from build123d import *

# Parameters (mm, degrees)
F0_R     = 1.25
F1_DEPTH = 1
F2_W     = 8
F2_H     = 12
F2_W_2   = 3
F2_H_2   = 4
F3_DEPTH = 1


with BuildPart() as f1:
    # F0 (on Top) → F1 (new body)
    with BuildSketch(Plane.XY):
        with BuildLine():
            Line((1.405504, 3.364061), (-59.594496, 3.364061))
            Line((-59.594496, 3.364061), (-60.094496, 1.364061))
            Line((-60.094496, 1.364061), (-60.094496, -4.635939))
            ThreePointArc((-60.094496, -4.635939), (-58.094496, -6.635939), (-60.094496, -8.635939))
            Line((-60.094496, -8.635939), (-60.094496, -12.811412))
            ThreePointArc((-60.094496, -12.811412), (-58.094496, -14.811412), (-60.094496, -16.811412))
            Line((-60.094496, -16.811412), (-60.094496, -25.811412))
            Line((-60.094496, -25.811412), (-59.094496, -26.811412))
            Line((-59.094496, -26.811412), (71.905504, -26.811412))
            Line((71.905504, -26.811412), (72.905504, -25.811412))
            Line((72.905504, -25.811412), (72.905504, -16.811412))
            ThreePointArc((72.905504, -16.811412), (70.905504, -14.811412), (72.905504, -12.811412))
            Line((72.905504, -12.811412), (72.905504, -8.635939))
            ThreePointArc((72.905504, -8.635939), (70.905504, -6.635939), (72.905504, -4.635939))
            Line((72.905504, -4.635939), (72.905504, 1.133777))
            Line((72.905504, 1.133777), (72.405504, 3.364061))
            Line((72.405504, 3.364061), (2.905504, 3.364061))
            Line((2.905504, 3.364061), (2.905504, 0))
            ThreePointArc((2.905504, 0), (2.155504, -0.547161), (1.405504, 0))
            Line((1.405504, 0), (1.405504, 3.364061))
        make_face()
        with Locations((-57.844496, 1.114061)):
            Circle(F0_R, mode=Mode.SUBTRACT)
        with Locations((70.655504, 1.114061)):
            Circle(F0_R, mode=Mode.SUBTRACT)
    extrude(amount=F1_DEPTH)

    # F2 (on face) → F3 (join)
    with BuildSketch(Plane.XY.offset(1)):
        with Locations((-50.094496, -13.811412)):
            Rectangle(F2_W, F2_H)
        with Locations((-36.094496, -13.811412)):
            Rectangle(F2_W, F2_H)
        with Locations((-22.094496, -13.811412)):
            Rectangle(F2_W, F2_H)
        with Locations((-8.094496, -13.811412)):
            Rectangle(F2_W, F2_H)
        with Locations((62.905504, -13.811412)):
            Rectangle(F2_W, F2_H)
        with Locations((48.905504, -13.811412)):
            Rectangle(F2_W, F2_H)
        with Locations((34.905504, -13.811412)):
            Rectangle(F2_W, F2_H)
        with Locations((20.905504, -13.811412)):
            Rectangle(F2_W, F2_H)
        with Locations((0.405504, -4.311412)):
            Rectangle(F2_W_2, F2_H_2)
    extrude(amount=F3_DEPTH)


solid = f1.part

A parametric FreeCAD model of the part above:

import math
import FreeCAD as App
import Part
import Sketcher

V = App.Vector
Q = App.Units.Quantity


def add_polygon(sketch, points):
    """Adds a closed chain of lines whose ends are joined by coincident constraints."""
    first, n = sketch.GeometryCount, len(points)
    for a, b in zip(points, points[1:] + points[:1]):
        sketch.addGeometry(Part.LineSegment(App.Vector(*a, 0), App.Vector(*b, 0)), False)
    for i in range(n):
        sketch.addConstraint(Sketcher.Constraint("Coincident", first + i, 2, first + (i + 1) % n, 1))

doc = App.newDocument("Part")
body = doc.addObject("PartDesign::Body", "Body")

# Sketch on XY plane
sketch1 = body.newObject("Sketcher::SketchObject", "Sketch")
sketch1.AttachmentSupport = (doc.getObject("XY_Plane"), [""])
sketch1.MapMode = "FlatFace"
sketch1.addGeometry(Part.LineSegment(V(1.4, 3.4, 0), V(-59.6, 3.4, 0)), False)
sketch1.addGeometry(Part.LineSegment(V(-59.6, 3.4, 0), V(-60.1, 1.4, 0)), False)
sketch1.addGeometry(Part.LineSegment(V(-60.1, 1.4, 0), V(-60.1, -4.6, 0)), False)
sketch1.addGeometry(Part.ArcOfCircle(Part.Circle(V(-60.1, -6.6, 0), V(0, 0, 1), 2), math.radians(-90), math.radians(90)), False)
sketch1.addGeometry(Part.LineSegment(V(-60.1, -8.6, 0), V(-60.1, -12.8, 0)), False)
sketch1.addGeometry(Part.ArcOfCircle(Part.Circle(V(-60.1, -14.8, 0), V(0, 0, 1), 2), math.radians(-90), math.radians(90)), False)
sketch1.addGeometry(Part.LineSegment(V(-60.1, -16.8, 0), V(-60.1, -25.8, 0)), False)
sketch1.addGeometry(Part.LineSegment(V(-60.1, -25.8, 0), V(-59.1, -26.8, 0)), False)
sketch1.addGeometry(Part.LineSegment(V(-59.1, -26.8, 0), V(71.9, -26.8, 0)), False)
sketch1.addGeometry(Part.LineSegment(V(71.9, -26.8, 0), V(72.9, -25.8, 0)), False)
sketch1.addGeometry(Part.LineSegment(V(72.9, -25.8, 0), V(72.9, -16.8, 0)), False)
sketch1.addGeometry(Part.ArcOfCircle(Part.Circle(V(72.9, -14.8, 0), V(0, 0, 1), 2), math.radians(90), math.radians(270)), False)
sketch1.addGeometry(Part.LineSegment(V(72.9, -12.8, 0), V(72.9, -8.6, 0)), False)
sketch1.addGeometry(Part.ArcOfCircle(Part.Circle(V(72.9, -6.6, 0), V(0, 0, 1), 2), math.radians(90), math.radians(270)), False)
sketch1.addGeometry(Part.LineSegment(V(72.9, -4.6, 0), V(72.9, 1.1, 0)), False)
sketch1.addGeometry(Part.LineSegment(V(72.9, 1.1, 0), V(72.4, 3.4, 0)), False)
sketch1.addGeometry(Part.LineSegment(V(72.4, 3.4, 0), V(2.9, 3.4, 0)), False)
sketch1.addGeometry(Part.LineSegment(V(2.9, 3.4, 0), V(2.9, 0, 0)), False)
sketch1.addGeometry(Part.ArcOfCircle(Part.Circle(V(2.2, 0.2, 0), V(0, 0, 1), 0.8), math.radians(-162), math.radians(-18)), False)
sketch1.addGeometry(Part.LineSegment(V(1.4, 0, 0), V(1.4, 3.4, 0)), False)
sketch1.addGeometry(Part.Circle(V(-57.8, 1.1, 0), V(0, 0, 1), 1.2), False)
sketch1.addGeometry(Part.Circle(V(70.7, 1.1, 0), V(0, 0, 1), 1.2), False)
sketch1.addConstraint(Sketcher.Constraint("Coincident", 0, 2, 1, 1))
sketch1.addConstraint(Sketcher.Constraint("Coincident", 1, 2, 2, 1))
sketch1.addConstraint(Sketcher.Constraint("Coincident", 2, 2, 3, 2))
sketch1.addConstraint(Sketcher.Constraint("Coincident", 3, 1, 4, 1))
sketch1.addConstraint(Sketcher.Constraint("Coincident", 4, 2, 5, 2))
sketch1.addConstraint(Sketcher.Constraint("Coincident", 5, 1, 6, 1))
sketch1.addConstraint(Sketcher.Constraint("Coincident", 6, 2, 7, 1))
sketch1.addConstraint(Sketcher.Constraint("Coincident", 7, 2, 8, 1))
sketch1.addConstraint(Sketcher.Constraint("Coincident", 8, 2, 9, 1))
sketch1.addConstraint(Sketcher.Constraint("Coincident", 9, 2, 10, 1))
sketch1.addConstraint(Sketcher.Constraint("Coincident", 10, 2, 11, 2))
sketch1.addConstraint(Sketcher.Constraint("Coincident", 11, 1, 12, 1))
sketch1.addConstraint(Sketcher.Constraint("Coincident", 12, 2, 13, 2))
sketch1.addConstraint(Sketcher.Constraint("Coincident", 13, 1, 14, 1))
sketch1.addConstraint(Sketcher.Constraint("Coincident", 14, 2, 15, 1))
sketch1.addConstraint(Sketcher.Constraint("Coincident", 15, 2, 16, 1))
sketch1.addConstraint(Sketcher.Constraint("Coincident", 16, 2, 17, 1))
sketch1.addConstraint(Sketcher.Constraint("Coincident", 17, 2, 18, 2))
sketch1.addConstraint(Sketcher.Constraint("Coincident", 18, 1, 19, 1))
sketch1.addConstraint(Sketcher.Constraint("Coincident", 19, 2, 0, 1))
sketch1.addConstraint(Sketcher.Constraint("Horizontal", 0))
sketch1.addConstraint(Sketcher.Constraint("Vertical", 2))
sketch1.addConstraint(Sketcher.Constraint("Vertical", 4))
sketch1.addConstraint(Sketcher.Constraint("Vertical", 6))
sketch1.addConstraint(Sketcher.Constraint("Horizontal", 8))
sketch1.addConstraint(Sketcher.Constraint("Vertical", 10))
sketch1.addConstraint(Sketcher.Constraint("Vertical", 12))
sketch1.addConstraint(Sketcher.Constraint("Vertical", 14))
sketch1.addConstraint(Sketcher.Constraint("Horizontal", 16))
sketch1.addConstraint(Sketcher.Constraint("Vertical", 17))
sketch1.addConstraint(Sketcher.Constraint("Vertical", 19))
sketch1.addConstraint(Sketcher.Constraint("Equal", 3, 5))
sketch1.addConstraint(Sketcher.Constraint("Equal", 5, 11))
sketch1.addConstraint(Sketcher.Constraint("Equal", 11, 13))
sketch1.addConstraint(Sketcher.Constraint("Equal", 20, 21))
sketch1.addConstraint(Sketcher.Constraint("PointOnObject", 17, 2, -1))
sketch1.addConstraint(Sketcher.Constraint("PointOnObject", 18, 1, -1))
sketch1.addConstraint(Sketcher.Constraint("Perpendicular", 7, 9))
sketch1.addConstraint(Sketcher.Constraint("Horizontal", 5, 3, 11, 3))
sketch1.addConstraint(Sketcher.Constraint("Horizontal", 3, 3, 13, 3))
sketch1.addConstraint(Sketcher.Constraint("Horizontal", 20, 3, 21, 3))
sketch1.addConstraint(Sketcher.Constraint("Horizontal", 6, 2, 9, 2))
sketch1.addConstraint(Sketcher.Constraint("Horizontal", 0, 2, 15, 2))
sketch1.addConstraint(Sketcher.Constraint("Vertical", 3, 3, 5, 3))
sketch1.addConstraint(Sketcher.Constraint("Vertical", 11, 3, 13, 3))
sketch1.addConstraint(Sketcher.Constraint("Vertical", 5, 3, 1, 2))
sketch1.addConstraint(Sketcher.Constraint("Vertical", 2, 2, 3, 1))
sketch1.addConstraint(Sketcher.Constraint("Vertical", 4, 2, 5, 1))
sketch1.addConstraint(Sketcher.Constraint("Vertical", 13, 3, 9, 2))
sketch1.addConstraint(Sketcher.Constraint("Vertical", 10, 2, 11, 1))
sketch1.addConstraint(Sketcher.Constraint("Vertical", 12, 2, 13, 1))
sketch1.addConstraint(Sketcher.Constraint("Equal", 7, 9))
sketch1.addConstraint(Sketcher.Constraint("Radius", 3, Q("2 mm")))
sketch1.addConstraint(Sketcher.Constraint("Diameter", 20, Q("2.5 mm")))
sketch1.addConstraint(Sketcher.Constraint("DistanceX", 0, 2, 0, 1, Q("61 mm")))
sketch1.addConstraint(Sketcher.Constraint("DistanceX", 8, 1, 8, 2, Q("131 mm")))
sketch1.addConstraint(Sketcher.Constraint("DistanceY", 2, 2, 2, 1, Q("6 mm")))
sketch1.addConstraint(Sketcher.Constraint("DistanceY", 6, 2, 6, 1, Q("9 mm")))
sketch1.addConstraint(Sketcher.Constraint("DistanceX", 16, 2, 16, 1, Q("69.5 mm")))
sketch1.addConstraint(Sketcher.Constraint("DistanceX", 5, 3, 11, 3, Q("133 mm")))
sketch1.addConstraint(Sketcher.Constraint("DistanceX", 20, 3, 18, 3, Q("60 mm")))
sketch1.addConstraint(Sketcher.Constraint("DistanceY", 3, 3, 0, 2, Q("10 mm")))
sketch1.addConstraint(Sketcher.Constraint("DistanceX", 1, 2, 16, 2, Q("63 mm")))
sketch1.addConstraint(Sketcher.Constraint("DistanceX", 18, 3, 21, 3, Q("68.5 mm")))
sketch1.addConstraint(Sketcher.Constraint("DistanceX", 3, 3, 0, 2, Q("0.5 mm")))
sketch1.addConstraint(Sketcher.Constraint("DistanceY", 3, 3, 20, 3, Q("7.75 mm")))
sketch1.addConstraint(Sketcher.Constraint("Radius", 18, Q("0.787597 mm")))
sketch1.addConstraint(Sketcher.Constraint("DistanceY", 17, 2, 17, 1, Q("3.364061 mm")))
sketch1.addConstraint(Sketcher.Constraint("DistanceY", 4, 2, 4, 1, Q("4.175473 mm")))
sketch1.addConstraint(Sketcher.Constraint("DistanceY", 14, 1, 14, 2, Q("5.769716 mm")))
sketch1.addConstraint(Sketcher.Constraint("DistanceX", 3, 3, -1, 1, Q("60.094496 mm")))
pad1 = body.newObject("PartDesign::Pad", "Pad")
pad1.Profile = sketch1
pad1.Length = 1

# Sketch on XY plane
sketch2 = body.newObject("Sketcher::SketchObject", "Sketch001")
sketch2.AttachmentSupport = (doc.getObject("XY_Plane"), [""])
sketch2.MapMode = "FlatFace"
sketch2.AttachmentOffset = App.Placement(V(0, 0, 1), App.Rotation())
add_polygon(sketch2, [(-54.1, -7.8), (-54.1, -19.8), (-46.1, -19.8), (-46.1, -7.8)])  # lines 0-3
add_polygon(sketch2, [(-40.1, -7.8), (-40.1, -19.8), (-32.1, -19.8), (-32.1, -7.8)])  # lines 4-7
add_polygon(sketch2, [(-26.1, -7.8), (-26.1, -19.8), (-18.1, -19.8), (-18.1, -7.8)])  # lines 8-11
add_polygon(sketch2, [(-12.1, -7.8), (-12.1, -19.8), (-4.1, -19.8), (-4.1, -7.8)])  # lines 12-15
add_polygon(sketch2, [(58.9, -7.8), (58.9, -19.8), (66.9, -19.8), (66.9, -7.8)])  # lines 16-19
add_polygon(sketch2, [(44.9, -7.8), (44.9, -19.8), (52.9, -19.8), (52.9, -7.8)])  # lines 20-23
add_polygon(sketch2, [(30.9, -7.8), (30.9, -19.8), (38.9, -19.8), (38.9, -7.8)])  # lines 24-27
add_polygon(sketch2, [(16.9, -7.8), (16.9, -19.8), (24.9, -19.8), (24.9, -7.8)])  # lines 28-31
add_polygon(sketch2, [(-1.1, -2.3), (-1.1, -6.3), (1.9, -6.3), (1.9, -2.3)])  # lines 32-35
sketch2.addConstraint(Sketcher.Constraint("Vertical", 0))
sketch2.addConstraint(Sketcher.Constraint("Horizontal", 1))
sketch2.addConstraint(Sketcher.Constraint("Vertical", 2))
sketch2.addConstraint(Sketcher.Constraint("Horizontal", 3))
sketch2.addConstraint(Sketcher.Constraint("Vertical", 4))
sketch2.addConstraint(Sketcher.Constraint("Horizontal", 5))
sketch2.addConstraint(Sketcher.Constraint("Vertical", 6))
sketch2.addConstraint(Sketcher.Constraint("Horizontal", 7))
sketch2.addConstraint(Sketcher.Constraint("Vertical", 8))
sketch2.addConstraint(Sketcher.Constraint("Horizontal", 9))
sketch2.addConstraint(Sketcher.Constraint("Vertical", 10))
sketch2.addConstraint(Sketcher.Constraint("Horizontal", 11))
sketch2.addConstraint(Sketcher.Constraint("Vertical", 12))
sketch2.addConstraint(Sketcher.Constraint("Horizontal", 13))
sketch2.addConstraint(Sketcher.Constraint("Vertical", 14))
sketch2.addConstraint(Sketcher.Constraint("Horizontal", 15))
sketch2.addConstraint(Sketcher.Constraint("Vertical", 16))
sketch2.addConstraint(Sketcher.Constraint("Horizontal", 17))
sketch2.addConstraint(Sketcher.Constraint("Vertical", 18))
sketch2.addConstraint(Sketcher.Constraint("Horizontal", 19))
sketch2.addConstraint(Sketcher.Constraint("Vertical", 20))
sketch2.addConstraint(Sketcher.Constraint("Horizontal", 21))
sketch2.addConstraint(Sketcher.Constraint("Vertical", 22))
sketch2.addConstraint(Sketcher.Constraint("Horizontal", 23))
sketch2.addConstraint(Sketcher.Constraint("Vertical", 24))
sketch2.addConstraint(Sketcher.Constraint("Horizontal", 25))
sketch2.addConstraint(Sketcher.Constraint("Vertical", 26))
sketch2.addConstraint(Sketcher.Constraint("Horizontal", 27))
sketch2.addConstraint(Sketcher.Constraint("Vertical", 28))
sketch2.addConstraint(Sketcher.Constraint("Horizontal", 29))
sketch2.addConstraint(Sketcher.Constraint("Vertical", 30))
sketch2.addConstraint(Sketcher.Constraint("Horizontal", 31))
sketch2.addConstraint(Sketcher.Constraint("Vertical", 32))
sketch2.addConstraint(Sketcher.Constraint("Horizontal", 33))
sketch2.addConstraint(Sketcher.Constraint("Vertical", 34))
sketch2.addConstraint(Sketcher.Constraint("Horizontal", 35))
sketch2.addConstraint(Sketcher.Constraint("Horizontal", 1, 2, 4, 2))
sketch2.addConstraint(Sketcher.Constraint("Horizontal", 3, 2, 6, 2))
sketch2.addConstraint(Sketcher.Constraint("Horizontal", 5, 2, 8, 2))
sketch2.addConstraint(Sketcher.Constraint("Horizontal", 7, 2, 10, 2))
sketch2.addConstraint(Sketcher.Constraint("Horizontal", 9, 2, 12, 2))
sketch2.addConstraint(Sketcher.Constraint("Horizontal", 11, 2, 14, 2))
sketch2.addConstraint(Sketcher.Constraint("Horizontal", 13, 2, 16, 2))
sketch2.addConstraint(Sketcher.Constraint("Horizontal", 15, 2, 18, 2))
sketch2.addConstraint(Sketcher.Constraint("Horizontal", 17, 2, 20, 2))
sketch2.addConstraint(Sketcher.Constraint("Horizontal", 19, 2, 22, 2))
sketch2.addConstraint(Sketcher.Constraint("Horizontal", 21, 2, 24, 2))
sketch2.addConstraint(Sketcher.Constraint("Horizontal", 23, 2, 26, 2))
sketch2.addConstraint(Sketcher.Constraint("Horizontal", 25, 2, 28, 2))
sketch2.addConstraint(Sketcher.Constraint("Horizontal", 27, 2, 30, 2))
sketch2.addConstraint(Sketcher.Constraint("Equal", 3, 5))
sketch2.addConstraint(Sketcher.Constraint("Equal", 7, 9))
sketch2.addConstraint(Sketcher.Constraint("Equal", 11, 13))
sketch2.addConstraint(Sketcher.Constraint("Equal", 15, 17))
sketch2.addConstraint(Sketcher.Constraint("Equal", 19, 21))
sketch2.addConstraint(Sketcher.Constraint("Equal", 23, 25))
sketch2.addConstraint(Sketcher.Constraint("Equal", 27, 29))
sketch2.addConstraint(Sketcher.Constraint("DistanceX", 1, 1, 1, 2, Q("8 mm")))
sketch2.addConstraint(Sketcher.Constraint("DistanceX", 33, 1, 33, 2, Q("3 mm")))
sketch2.addConstraint(Sketcher.Constraint("DistanceY", 0, 2, 0, 1, Q("12 mm")))
sketch2.addConstraint(Sketcher.Constraint("DistanceY", 32, 2, 32, 1, Q("4 mm")))
sketch2.addConstraint(Sketcher.Constraint("DistanceX", 1, 2, 4, 2, Q("6 mm")))
sketch2.addConstraint(Sketcher.Constraint("DistanceX", 5, 2, 8, 2, Q("6 mm")))
sketch2.addConstraint(Sketcher.Constraint("DistanceX", 9, 2, 12, 2, Q("6 mm")))
sketch2.addConstraint(Sketcher.Constraint("DistanceX", 13, 2, 16, 2, Q("63 mm")))
sketch2.addConstraint(Sketcher.Constraint("DistanceX", 20, 2, 16, 2, Q("14 mm")))
sketch2.addConstraint(Sketcher.Constraint("DistanceX", 24, 2, 20, 2, Q("14 mm")))
sketch2.addConstraint(Sketcher.Constraint("DistanceX", 28, 2, 24, 2, Q("14 mm")))
sketch2.addConstraint(Sketcher.Constraint("DistanceX", 14, 2, 32, 2, Q("3 mm")))
sketch2.addConstraint(Sketcher.Constraint("DistanceY", 14, 2, 32, 2, Q("1.5 mm")))
sketch2.addConstraint(Sketcher.Constraint("DistanceY", 2, 2, -1, 1, Q("7.811412 mm")))
sketch2.addConstraint(Sketcher.Constraint("DistanceX", 0, 2, -1, 1, Q("54.094496 mm")))
pad2 = body.newObject("PartDesign::Pad", "Pad001")
pad2.Profile = sketch2
pad2.Length = 1

doc.recompute()
